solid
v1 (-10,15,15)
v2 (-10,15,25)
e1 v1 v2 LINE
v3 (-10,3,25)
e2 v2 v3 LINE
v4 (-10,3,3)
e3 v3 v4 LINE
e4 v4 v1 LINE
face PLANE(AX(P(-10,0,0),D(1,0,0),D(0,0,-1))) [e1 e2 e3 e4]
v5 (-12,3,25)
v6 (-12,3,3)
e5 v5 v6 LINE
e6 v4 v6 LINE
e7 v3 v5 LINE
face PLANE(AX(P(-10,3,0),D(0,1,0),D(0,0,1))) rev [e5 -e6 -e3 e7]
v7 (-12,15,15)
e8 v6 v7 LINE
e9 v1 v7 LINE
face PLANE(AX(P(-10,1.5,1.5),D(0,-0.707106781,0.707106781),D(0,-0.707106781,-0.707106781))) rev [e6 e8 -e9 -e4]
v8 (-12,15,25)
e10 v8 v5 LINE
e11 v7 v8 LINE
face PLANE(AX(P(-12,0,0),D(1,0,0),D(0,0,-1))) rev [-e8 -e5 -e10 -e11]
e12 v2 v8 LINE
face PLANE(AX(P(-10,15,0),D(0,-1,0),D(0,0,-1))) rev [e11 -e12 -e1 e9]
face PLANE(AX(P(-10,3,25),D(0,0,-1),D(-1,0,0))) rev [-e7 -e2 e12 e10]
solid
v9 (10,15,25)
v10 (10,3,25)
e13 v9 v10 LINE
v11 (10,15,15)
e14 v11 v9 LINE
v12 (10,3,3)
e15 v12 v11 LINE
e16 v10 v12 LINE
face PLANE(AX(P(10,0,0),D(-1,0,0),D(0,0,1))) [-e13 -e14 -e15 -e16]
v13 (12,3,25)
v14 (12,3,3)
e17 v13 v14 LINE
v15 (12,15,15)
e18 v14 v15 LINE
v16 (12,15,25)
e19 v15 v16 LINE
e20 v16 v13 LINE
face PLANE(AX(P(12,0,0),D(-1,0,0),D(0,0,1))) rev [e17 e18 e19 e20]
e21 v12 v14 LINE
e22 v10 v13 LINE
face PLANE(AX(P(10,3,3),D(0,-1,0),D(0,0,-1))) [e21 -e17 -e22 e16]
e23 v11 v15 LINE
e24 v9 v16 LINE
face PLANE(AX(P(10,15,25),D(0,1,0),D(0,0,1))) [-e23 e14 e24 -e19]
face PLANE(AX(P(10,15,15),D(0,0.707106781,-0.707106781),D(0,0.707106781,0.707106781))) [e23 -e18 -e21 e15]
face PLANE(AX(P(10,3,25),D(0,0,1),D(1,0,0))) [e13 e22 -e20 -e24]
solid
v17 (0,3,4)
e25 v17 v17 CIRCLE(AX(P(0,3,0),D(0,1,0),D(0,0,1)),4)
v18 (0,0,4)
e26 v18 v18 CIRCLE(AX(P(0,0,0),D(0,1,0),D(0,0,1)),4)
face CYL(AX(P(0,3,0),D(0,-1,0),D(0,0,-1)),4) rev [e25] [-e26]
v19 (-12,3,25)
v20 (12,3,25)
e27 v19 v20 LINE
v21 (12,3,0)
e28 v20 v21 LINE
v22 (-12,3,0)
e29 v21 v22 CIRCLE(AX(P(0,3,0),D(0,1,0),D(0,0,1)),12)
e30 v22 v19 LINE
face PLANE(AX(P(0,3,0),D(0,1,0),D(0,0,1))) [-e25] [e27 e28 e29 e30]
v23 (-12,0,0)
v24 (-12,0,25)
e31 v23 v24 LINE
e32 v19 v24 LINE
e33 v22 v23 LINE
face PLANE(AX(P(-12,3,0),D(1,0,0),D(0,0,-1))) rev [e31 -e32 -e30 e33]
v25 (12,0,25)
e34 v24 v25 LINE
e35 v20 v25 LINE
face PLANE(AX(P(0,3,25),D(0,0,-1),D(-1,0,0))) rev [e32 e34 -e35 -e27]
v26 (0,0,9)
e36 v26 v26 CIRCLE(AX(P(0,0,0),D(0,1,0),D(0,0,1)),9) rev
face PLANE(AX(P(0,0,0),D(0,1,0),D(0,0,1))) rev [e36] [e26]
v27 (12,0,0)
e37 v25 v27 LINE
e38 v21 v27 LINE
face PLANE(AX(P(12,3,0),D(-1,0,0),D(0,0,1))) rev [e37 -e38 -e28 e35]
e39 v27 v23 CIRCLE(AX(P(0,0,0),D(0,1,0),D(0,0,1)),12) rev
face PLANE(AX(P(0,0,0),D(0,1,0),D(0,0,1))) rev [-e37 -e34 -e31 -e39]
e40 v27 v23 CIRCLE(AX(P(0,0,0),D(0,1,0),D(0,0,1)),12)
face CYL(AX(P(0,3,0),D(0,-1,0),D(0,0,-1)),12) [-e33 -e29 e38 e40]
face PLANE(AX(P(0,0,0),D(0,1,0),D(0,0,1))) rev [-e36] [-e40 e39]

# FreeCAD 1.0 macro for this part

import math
import FreeCAD as App
import Part
import Sketcher
from FreeCAD import Vector
Q = App.Units.Quantity

doc = App.newDocument("Part")
body = doc.addObject("PartDesign::Body", "Body")

# Sketch on XZ plane
sketch1 = doc.addObject("Sketcher::SketchObject", "Sketch")
body.addObject(sketch1)
sketch1.AttachmentSupport = (doc.XZ_Plane, [""])
sketch1.MapMode = "FlatFace"
sketch1.addGeometry(Part.ArcOfCircle(Part.Circle(Vector(0, 0, 0), Vector(0, 0, 1), 12), math.radians(180), math.radians(360)), False)
sketch1.addGeometry(Part.LineSegment(Vector(-12, 0, 0), Vector(-12, 25, 0)), False)
sketch1.addGeometry(Part.LineSegment(Vector(-12, 25, 0), Vector(12, 25, 0)), False)
sketch1.addGeometry(Part.LineSegment(Vector(12, 25, 0), Vector(12, 0, 0)), False)
sketch1.addGeometry(Part.Circle(Vector(0, 0, 0), Vector(0, 0, 1), 4), False)
sketch1.addConstraint(Sketcher.Constraint("Tangent", 0, 1, 1, 1))
sketch1.addConstraint(Sketcher.Constraint("Coincident", 1, 2, 2, 1))
sketch1.addConstraint(Sketcher.Constraint("Coincident", 2, 2, 3, 1))
sketch1.addConstraint(Sketcher.Constraint("Tangent", 3, 2, 0, 2))
sketch1.addConstraint(Sketcher.Constraint("Vertical", 1))
sketch1.addConstraint(Sketcher.Constraint("Horizontal", 2))
sketch1.addConstraint(Sketcher.Constraint("Vertical", 3))
sketch1.addConstraint(Sketcher.Constraint("Coincident", 0, 3, -1, 1))
sketch1.addConstraint(Sketcher.Constraint("Coincident", 4, 3, -1, 1))
sketch1.addConstraint(Sketcher.Constraint("Diameter", 4, Q("8 mm")))
sketch1.addConstraint(Sketcher.Constraint("Radius", 0, Q("12 mm")))
sketch1.addConstraint(Sketcher.Constraint("DistanceY", 1, 1, 1, 2, Q("25 mm")))
pad1 = doc.addObject("PartDesign::Pad", "Pad")
body.addObject(pad1)
pad1.Profile = sketch1
pad1.Length = 3
pad1.Reversed = True
body2 = doc.addObject("PartDesign::Body", "Body001")

# Sketch on YZ plane
sketch2 = doc.addObject("Sketcher::SketchObject", "Sketch001")
body2.addObject(sketch2)
sketch2.AttachmentSupport = (doc.getObject("YZ_Plane001"), [""])
sketch2.MapMode = "FlatFace"
sketch2.AttachmentOffset = App.Placement(Vector(0, 0, 12), App.Rotation())
sketch2.addGeometry(Part.LineSegment(Vector(15, 25, 0), Vector(3, 25, 0)), False)
sketch2.addGeometry(Part.LineSegment(Vector(3, 25, 0), Vector(3, 3, 0)), False)
sketch2.addGeometry(Part.LineSegment(Vector(3, 3, 0), Vector(15, 15, 0)), False)
sketch2.addGeometry(Part.LineSegment(Vector(15, 15, 0), Vector(15, 25, 0)), False)
sketch2.addConstraint(Sketcher.Constraint("Coincident", 0, 2, 1, 1))
sketch2.addConstraint(Sketcher.Constraint("Coincident", 1, 2, 2, 1))
sketch2.addConstraint(Sketcher.Constraint("Coincident", 2, 2, 3, 1))
sketch2.addConstraint(Sketcher.Constraint("Coincident", 3, 2, 0, 1))
sketch2.addConstraint(Sketcher.Constraint("Horizontal", 0))
sketch2.addConstraint(Sketcher.Constraint("Vertical", 1))
sketch2.addConstraint(Sketcher.Constraint("Vertical", 3))
sketch2.addConstraint(Sketcher.Constraint("DistanceX", 0, 2, 0, 1, Q("12 mm")))
sketch2.addConstraint(Sketcher.Constraint("DistanceY", 1, 2, 1, 1, Q("22 mm")))
sketch2.addConstraint(Sketcher.Constraint("DistanceY", 3, 1, 3, 2, Q("10 mm")))
sketch2.addConstraint(Sketcher.Constraint("DistanceX", -1, 1, 0, 2, Q("3 mm")))
sketch2.addConstraint(Sketcher.Constraint("DistanceY", -1, 1, 0, 2, Q("25 mm")))
pad2 = doc.addObject("PartDesign::Pad", "Pad001")
body2.addObject(pad2)
pad2.Profile = sketch2
pad2.Length = 2
pad2.Reversed = True
body3 = doc.addObject("PartDesign::Body", "Body002")

# Sketch on YZ plane
sketch3 = doc.addObject("Sketcher::SketchObject", "Sketch002")
body3.addObject(sketch3)
sketch3.AttachmentSupport = (doc.getObject("YZ_Plane002"), [""])
sketch3.MapMode = "FlatFace"
sketch3.AttachmentOffset = App.Placement(Vector(0, 0, -12), App.Rotation())
sketch3.addGeometry(Part.LineSegment(Vector(15, 25, 0), Vector(3, 25, 0)), False)
sketch3.addGeometry(Part.LineSegment(Vector(3, 25, 0), Vector(3, 3, 0)), False)
sketch3.addGeometry(Part.LineSegment(Vector(3, 3, 0), Vector(15, 15, 0)), False)
sketch3.addGeometry(Part.LineSegment(Vector(15, 15, 0), Vector(15, 25, 0)), False)
sketch3.addConstraint(Sketcher.Constraint("Coincident", 0, 2, 1, 1))
sketch3.addConstraint(Sketcher.Constraint("Coincident", 1, 2, 2, 1))
sketch3.addConstraint(Sketcher.Constraint("Coincident", 2, 2, 3, 1))
sketch3.addConstraint(Sketcher.Constraint("Coincident", 3, 2, 0, 1))
sketch3.addConstraint(Sketcher.Constraint("Horizontal", 0))
sketch3.addConstraint(Sketcher.Constraint("Vertical", 1))
sketch3.addConstraint(Sketcher.Constraint("Vertical", 3))
sketch3.addConstraint(Sketcher.Constraint("DistanceX", 0, 2, 0, 1, Q("12 mm")))
sketch3.addConstraint(Sketcher.Constraint("DistanceY", 1, 2, 1, 1, Q("22 mm")))
sketch3.addConstraint(Sketcher.Constraint("DistanceY", 3, 1, 3, 2, Q("10 mm")))
sketch3.addConstraint(Sketcher.Constraint("DistanceX", -1, 1, 0, 2, Q("3 mm")))
sketch3.addConstraint(Sketcher.Constraint("DistanceY", -1, 1, 0, 2, Q("25 mm")))
pad3 = doc.addObject("PartDesign::Pad", "Pad002")
body3.addObject(pad3)
pad3.Profile = sketch3
pad3.Length = 2

doc.recompute()
